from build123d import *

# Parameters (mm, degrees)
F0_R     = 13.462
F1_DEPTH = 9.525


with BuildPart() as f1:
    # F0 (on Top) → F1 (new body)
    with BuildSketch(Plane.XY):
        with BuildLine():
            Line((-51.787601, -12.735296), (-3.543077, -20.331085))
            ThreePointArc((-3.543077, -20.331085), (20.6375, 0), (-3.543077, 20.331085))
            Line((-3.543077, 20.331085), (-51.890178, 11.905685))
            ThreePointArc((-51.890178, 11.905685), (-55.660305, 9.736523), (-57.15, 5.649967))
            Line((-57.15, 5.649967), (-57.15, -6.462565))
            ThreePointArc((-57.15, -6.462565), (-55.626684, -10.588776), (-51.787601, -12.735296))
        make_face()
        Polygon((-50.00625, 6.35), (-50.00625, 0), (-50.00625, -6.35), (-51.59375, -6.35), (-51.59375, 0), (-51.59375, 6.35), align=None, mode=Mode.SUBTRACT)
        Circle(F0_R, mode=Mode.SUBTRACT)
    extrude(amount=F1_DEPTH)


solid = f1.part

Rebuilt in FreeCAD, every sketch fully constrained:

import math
import FreeCAD as App
import Part
import Sketcher
from FreeCAD import Vector
Q = App.Units.Quantity

doc = App.newDocument("Part")
body = doc.addObject("PartDesign::Body", "Body")

sketch1 = body.newObject("Sketcher::SketchObject", "Sketch")
sketch1.AttachmentSupport = (doc.getObject("XY_Plane"), [""])
sketch1.MapMode = "FlatFace"
sketch1.addGeometry(Part.LineSegment(Vector(-51.787601, -12.735296, 0), Vector(-3.543077, -20.331085, 0)), False)
sketch1.addGeometry(Part.ArcOfCircle(Part.Circle(Vector(0, 0, 0), Vector(0, 0, 1), 20.6375), math.radians(-99.885599), math.radians(99.885599)), False)
sketch1.addGeometry(Part.LineSegment(Vector(-3.543077, 20.331085, 0), Vector(-51.890178, 11.905685, 0)), False)
sketch1.addGeometry(Part.ArcOfCircle(Part.Circle(Vector(-50.800002, 5.649968, 0), Vector(0, 0, 1), 6.349998), math.radians(99.885589), math.radians(180.000011)), False)
sketch1.addGeometry(Part.LineSegment(Vector(-57.15, 5.649967, 0), Vector(-57.15, -6.462565, 0)), False)
sketch1.addGeometry(Part.ArcOfCircle(Part.Circle(Vector(-50.799997, -6.462563, 0), Vector(0, 0, 1), 6.350003), math.radians(-179.999986), math.radians(-98.947424)), False)
sketch1.addGeometry(Part.LineSegment(Vector(-51.59375, 6.35, 0), Vector(-50.00625, 6.35, 0)), False)
sketch1.addGeometry(Part.LineSegment(Vector(-50.00625, 6.35, 0), Vector(-50.00625, -6.35, 0)), False)
sketch1.addGeometry(Part.LineSegment(Vector(-50.00625, -6.35, 0), Vector(-51.59375, -6.35, 0)), False)
sketch1.addGeometry(Part.LineSegment(Vector(-51.59375, -6.35, 0), Vector(-51.59375, 6.35, 0)), False)
sketch1.addGeometry(Part.Circle(Vector(0, 0, 0), Vector(0, 0, 1), 13.462), False)
sketch1.addConstraint(Sketcher.Constraint("Coincident", 0, 2, 1, 1))
sketch1.addConstraint(Sketcher.Constraint("Tangent", 1, 2, 2, 1))
sketch1.addConstraint(Sketcher.Constraint("Tangent", 2, 2, 3, 1))
sketch1.addConstraint(Sketcher.Constraint("Tangent", 3, 2, 4, 1))
sketch1.addConstraint(Sketcher.Constraint("Tangent", 4, 2, 5, 1))
sketch1.addConstraint(Sketcher.Constraint("Tangent", 5, 2, 0, 1))
sketch1.addConstraint(Sketcher.Constraint("Coincident", 6, 2, 7, 1))
sketch1.addConstraint(Sketcher.Constraint("Coincident", 7, 2, 8, 1))
sketch1.addConstraint(Sketcher.Constraint("Coincident", 8, 2, 9, 1))
sketch1.addConstraint(Sketcher.Constraint("Coincident", 9, 2, 6, 1))
sketch1.addConstraint(Sketcher.Constraint("Vertical", 4))
sketch1.addConstraint(Sketcher.Constraint("Horizontal", 6))
sketch1.addConstraint(Sketcher.Constraint("Vertical", 7))
sketch1.addConstraint(Sketcher.Constraint("Horizontal", 8))
sketch1.addConstraint(Sketcher.Constraint("Vertical", 9))
sketch1.addConstraint(Sketcher.Constraint("Coincident", 1, 3, -1, 1))
sketch1.addConstraint(Sketcher.Constraint("Coincident", 10, 3, -1, 1))
sketch1.addConstraint(Sketcher.Constraint("Vertical", 0, 2, 1, 2))
sketch1.addConstraint(Sketcher.Constraint("Diameter", 10, Q("1.06 in")))
sketch1.addConstraint(Sketcher.Constraint("Radius", 3, Q("0.2499999 in")))
sketch1.addConstraint(Sketcher.Constraint("Radius", 5, Q("0.2500001 in")))
sketch1.addConstraint(Sketcher.Constraint("DistanceY", 7, 2, 7, 1, Q("0.5 in")))
sketch1.addConstraint(Sketcher.Constraint("DistanceX", 3, 3, -1, 1, Q("2.0000001 in")))
sketch1.addConstraint(Sketcher.Constraint("Radius", 1, Q("0.8125 in")))
sketch1.addConstraint(Sketcher.Constraint("DistanceX", 6, 1, 6, 2, Q("0.0625 in")))
sketch1.addConstraint(Sketcher.Constraint("DistanceY", -1, 1, 6, 2, Q("0.25 in")))
sketch1.addConstraint(Sketcher.Constraint("DistanceX", 6, 2, -1, 1, Q("1.96875 in")))
sketch1.addConstraint(Sketcher.Constraint("DistanceX", 5, 2, -1, 1, 51.787601))
sketch1.addConstraint(Sketcher.Constraint("DistanceX", 2, 2, 1, 2, 48.347101))
pad1 = body.newObject("PartDesign::Pad", "Pad")
pad1.Profile = sketch1
pad1.Length = Q("0.375 in")

doc.recompute()
